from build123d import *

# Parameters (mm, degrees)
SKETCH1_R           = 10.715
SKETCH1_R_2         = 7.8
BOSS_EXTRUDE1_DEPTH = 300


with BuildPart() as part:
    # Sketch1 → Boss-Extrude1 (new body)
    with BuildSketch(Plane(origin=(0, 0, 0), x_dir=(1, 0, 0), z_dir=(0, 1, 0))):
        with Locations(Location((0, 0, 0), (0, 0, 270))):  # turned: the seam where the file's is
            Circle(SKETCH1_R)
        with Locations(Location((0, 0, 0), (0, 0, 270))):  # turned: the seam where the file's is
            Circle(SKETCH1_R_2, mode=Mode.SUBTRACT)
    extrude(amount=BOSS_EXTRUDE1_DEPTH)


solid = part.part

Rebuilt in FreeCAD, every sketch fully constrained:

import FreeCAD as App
import Part
import Sketcher

doc = App.newDocument("Part")
body = doc.addObject("PartDesign::Body", "Body")

# Sketch on XZ plane
sketch1 = doc.addObject("Sketcher::SketchObject", "Sketch")
body.addObject(sketch1)
sketch1.AttachmentSupport = (doc.XZ_Plane, [""])
sketch1.MapMode = "FlatFace"
sketch1.addGeometry([
    Part.Circle(App.Vector(0, 0, 0), App.Vector(0, 0, 1), 11),
    Part.Circle(App.Vector(0, 0, 0), App.Vector(0, 0, 1), 8),
], False)
sketch1.addConstraint([
    Sketcher.Constraint("Coincident", 0, 3, -1, 1),
    Sketcher.Constraint("Coincident", 1, 3, -1, 1),
    Sketcher.Constraint("Diameter", 1, 15.6),
    Sketcher.Constraint("Diameter", 0, 21.43),
])
pad1 = doc.addObject("PartDesign::Pad", "Pad")
body.addObject(pad1)
pad1.Profile = sketch1
pad1.Length = 300
pad1.Reversed = True

doc.recompute()
